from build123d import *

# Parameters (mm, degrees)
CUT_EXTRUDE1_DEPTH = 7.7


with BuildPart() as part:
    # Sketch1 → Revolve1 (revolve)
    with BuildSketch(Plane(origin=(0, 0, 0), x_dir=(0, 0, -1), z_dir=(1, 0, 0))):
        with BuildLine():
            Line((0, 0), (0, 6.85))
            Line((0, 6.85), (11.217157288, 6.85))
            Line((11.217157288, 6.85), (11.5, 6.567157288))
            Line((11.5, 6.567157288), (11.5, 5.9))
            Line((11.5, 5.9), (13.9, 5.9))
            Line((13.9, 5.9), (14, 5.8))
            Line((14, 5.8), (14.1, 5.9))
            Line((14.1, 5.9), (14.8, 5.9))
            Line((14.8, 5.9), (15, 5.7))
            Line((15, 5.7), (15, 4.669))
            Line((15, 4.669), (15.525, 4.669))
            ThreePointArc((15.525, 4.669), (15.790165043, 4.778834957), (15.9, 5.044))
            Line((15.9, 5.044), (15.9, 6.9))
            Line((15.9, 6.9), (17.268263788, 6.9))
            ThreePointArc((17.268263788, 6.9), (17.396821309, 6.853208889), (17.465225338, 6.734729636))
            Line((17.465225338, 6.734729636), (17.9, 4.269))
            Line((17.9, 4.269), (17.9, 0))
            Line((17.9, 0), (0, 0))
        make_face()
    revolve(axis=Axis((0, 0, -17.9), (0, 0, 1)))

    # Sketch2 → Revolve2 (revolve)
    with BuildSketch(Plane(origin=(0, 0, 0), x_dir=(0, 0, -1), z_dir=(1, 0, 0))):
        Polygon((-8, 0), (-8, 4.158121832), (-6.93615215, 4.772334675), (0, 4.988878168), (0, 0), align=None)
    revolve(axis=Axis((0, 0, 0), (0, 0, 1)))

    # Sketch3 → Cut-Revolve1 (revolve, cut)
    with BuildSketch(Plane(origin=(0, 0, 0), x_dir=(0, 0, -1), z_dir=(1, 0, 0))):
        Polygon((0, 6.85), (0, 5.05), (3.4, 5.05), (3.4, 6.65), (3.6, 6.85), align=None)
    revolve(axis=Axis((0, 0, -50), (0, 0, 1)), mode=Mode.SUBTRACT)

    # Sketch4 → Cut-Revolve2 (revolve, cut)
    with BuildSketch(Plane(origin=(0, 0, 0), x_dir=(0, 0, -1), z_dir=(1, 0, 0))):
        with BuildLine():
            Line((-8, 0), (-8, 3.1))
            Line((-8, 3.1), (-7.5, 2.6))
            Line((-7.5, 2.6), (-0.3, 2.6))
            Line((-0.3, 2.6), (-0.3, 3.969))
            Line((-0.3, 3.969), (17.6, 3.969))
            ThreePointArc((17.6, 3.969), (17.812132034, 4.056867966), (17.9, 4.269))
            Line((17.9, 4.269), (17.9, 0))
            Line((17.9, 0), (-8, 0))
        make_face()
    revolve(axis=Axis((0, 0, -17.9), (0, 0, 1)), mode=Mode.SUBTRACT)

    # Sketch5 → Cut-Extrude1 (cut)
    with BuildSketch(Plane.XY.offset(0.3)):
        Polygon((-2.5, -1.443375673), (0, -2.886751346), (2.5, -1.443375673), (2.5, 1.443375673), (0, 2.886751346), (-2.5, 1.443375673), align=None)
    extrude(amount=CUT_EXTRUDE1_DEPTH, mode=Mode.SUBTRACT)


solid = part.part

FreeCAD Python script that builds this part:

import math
import FreeCAD as App
import Part
import Sketcher
from FreeCAD import Vector
Q = App.Units.Quantity


def add_polygon(sketch, points):
    """Adds a closed chain of lines whose ends are joined by coincident constraints."""
    first, n = sketch.GeometryCount, len(points)
    for a, b in zip(points, points[1:] + points[:1]):
        sketch.addGeometry(Part.LineSegment(App.Vector(*a, 0), App.Vector(*b, 0)), False)
    for i in range(n):
        sketch.addConstraint(Sketcher.Constraint("Coincident", first + i, 2, first + (i + 1) % n, 1))

doc = App.newDocument("Part")
body = doc.addObject("PartDesign::Body", "Body")

sketch1 = doc.addObject("Sketcher::SketchObject", "Sketch")
body.addObject(sketch1)
sketch1.AttachmentSupport = (doc.YZ_Plane, [""])
sketch1.MapMode = "FlatFace"
sketch1.addGeometry(Part.LineSegment(Vector(6.85, 0, 0), Vector(0, 0, 0)), False)
sketch1.addGeometry(Part.LineSegment(Vector(0, 0, 0), Vector(0, -17.9, 0)), False)
sketch1.addGeometry(Part.LineSegment(Vector(0, -17.9, 0), Vector(4.27, -17.9, 0)), False)
sketch1.addGeometry(Part.LineSegment(Vector(4.27, -17.9, 0), Vector(6.73, -17.47, 0)), False)
sketch1.addGeometry(Part.ArcOfCircle(Part.Circle(Vector(6.7, -17.27, 0), Vector(0, 0, 1), 0.2), math.radians(-80), math.radians(0)), False)
sketch1.addGeometry(Part.LineSegment(Vector(6.9, -17.27, 0), Vector(6.9, -15.9, 0)), False)
sketch1.addGeometry(Part.LineSegment(Vector(6.9, -15.9, 0), Vector(5.04, -15.9, 0)), False)
sketch1.addGeometry(Part.ArcOfCircle(Part.Circle(Vector(5.04, -15.53, 0), Vector(0, 0, 1), 0.38), math.radians(180), math.radians(270)), False)
sketch1.addGeometry(Part.LineSegment(Vector(4.67, -15.53, 0), Vector(4.67, -15, 0)), False)
sketch1.addGeometry(Part.LineSegment(Vector(4.67, -15, 0), Vector(5.7, -15, 0)), False)
sketch1.addGeometry(Part.LineSegment(Vector(5.7, -15, 0), Vector(5.9, -14.8, 0)), False)
sketch1.addGeometry(Part.LineSegment(Vector(5.9, -14.8, 0), Vector(5.9, -14.1, 0)), False)
sketch1.addGeometry(Part.LineSegment(Vector(5.9, -14.1, 0), Vector(5.8, -14, 0)), False)
sketch1.addGeometry(Part.LineSegment(Vector(5.8, -14, 0), Vector(5.9, -13.9, 0)), False)
sketch1.addGeometry(Part.LineSegment(Vector(5.9, -13.9, 0), Vector(5.9, -11.5, 0)), False)
sketch1.addGeometry(Part.LineSegment(Vector(5.9, -11.5, 0), Vector(6.57, -11.5, 0)), False)
sketch1.addGeometry(Part.LineSegment(Vector(6.57, -11.5, 0), Vector(6.85, -11.22, 0)), False)
sketch1.addGeometry(Part.LineSegment(Vector(6.85, -11.22, 0), Vector(6.85, 0, 0)), False)
sketch1.addConstraint(Sketcher.Constraint("Coincident", 0, 2, 1, 1))
sketch1.addConstraint(Sketcher.Constraint("Coincident", 1, 2, 2, 1))
sketch1.addConstraint(Sketcher.Constraint("Coincident", 2, 2, 3, 1))
sketch1.addConstraint(Sketcher.Constraint("Tangent", 3, 2, 4, 1))
sketch1.addConstraint(Sketcher.Constraint("Tangent", 4, 2, 5, 1))
sketch1.addConstraint(Sketcher.Constraint("Coincident", 5, 2, 6, 1))
sketch1.addConstraint(Sketcher.Constraint("Tangent", 6, 2, 7, 2))
sketch1.addConstraint(Sketcher.Constraint("Tangent", 7, 1, 8, 1))
sketch1.addConstraint(Sketcher.Constraint("Coincident", 8, 2, 9, 1))
sketch1.addConstraint(Sketcher.Constraint("Coincident", 9, 2, 10, 1))
sketch1.addConstraint(Sketcher.Constraint("Coincident", 10, 2, 11, 1))
sketch1.addConstraint(Sketcher.Constraint("Coincident", 11, 2, 12, 1))
sketch1.addConstraint(Sketcher.Constraint("Coincident", 12, 2, 13, 1))
sketch1.addConstraint(Sketcher.Constraint("Coincident", 13, 2, 14, 1))
sketch1.addConstraint(Sketcher.Constraint("Coincident", 14, 2, 15, 1))
sketch1.addConstraint(Sketcher.Constraint("Coincident", 15, 2, 16, 1))
sketch1.addConstraint(Sketcher.Constraint("Coincident", 16, 2, 17, 1))
sketch1.addConstraint(Sketcher.Constraint("Coincident", 17, 2, 0, 1))
sketch1.addConstraint(Sketcher.Constraint("Horizontal", 0))
sketch1.addConstraint(Sketcher.Constraint("Vertical", 1))
sketch1.addConstraint(Sketcher.Constraint("Horizontal", 2))
sketch1.addConstraint(Sketcher.Constraint("Vertical", 5))
sketch1.addConstraint(Sketcher.Constraint("Horizontal", 6))
sketch1.addConstraint(Sketcher.Constraint("Vertical", 8))
sketch1.addConstraint(Sketcher.Constraint("Horizontal", 9))
sketch1.addConstraint(Sketcher.Constraint("Vertical", 11))
sketch1.addConstraint(Sketcher.Constraint("Vertical", 14))
sketch1.addConstraint(Sketcher.Constraint("Horizontal", 15))
sketch1.addConstraint(Sketcher.Constraint("Vertical", 17))
sketch1.addConstraint(Sketcher.Constraint("Coincident", 0, 2, -1, 1))
sketch1.addConstraint(Sketcher.Constraint("Perpendicular", 10, 12))
sketch1.addConstraint(Sketcher.Constraint("Perpendicular", 12, 13))
sketch1.addConstraint(Sketcher.Constraint("Parallel", 13, 16))
sketch1.addConstraint(Sketcher.Constraint("Vertical", 11, 2, 13, 2))
sketch1.addConstraint(Sketcher.Constraint("Equal", 12, 13))
sketch1.addConstraint(Sketcher.Constraint("Radius", 4, 0.2))
sketch1.addConstraint(Sketcher.Constraint("Angle", 3, Q("10 deg")))
sketch1.addConstraint(Sketcher.Constraint("DistanceY", 1, 2, 1, 1, 17.9))
sketch1.addConstraint(Sketcher.Constraint("DistanceY", 11, 1, 11, 2, 0.7))
sketch1.addConstraint(Sketcher.Constraint("DistanceY", 14, 1, 14, 2, 2.4))
sketch1.addConstraint(Sketcher.Constraint("DistanceY", 8, 2, -1, 1, 15.0))
sketch1.addConstraint(Sketcher.Constraint("DistanceY", 12, 2, -1, 1, 14.0))
sketch1.addConstraint(Sketcher.Constraint("Radius", 7, 0.375))
sketch1.addConstraint(Sketcher.Constraint("DistanceY", 2, 2, 5, 2, 2.0))
sketch1.addConstraint(Sketcher.Constraint("Distance", 16, 0.4))
sketch1.addConstraint(Sketcher.Constraint("DistanceX", 0, 2, 0, 1, 6.85))
sketch1.addConstraint(Sketcher.Constraint("DistanceX", -1, 1, 4, 3, 6.7))
sketch1.addConstraint(Sketcher.Constraint("DistanceX", -1, 1, 9, 2, 5.7))
sketch1.addConstraint(Sketcher.Constraint("DistanceX", -1, 1, 10, 2, 5.9))
sketch1.addConstraint(Sketcher.Constraint("DistanceX", 2, 2, 7, 1, 0.4))
sketch1.addConstraint(Sketcher.Constraint("DistanceX", 2, 1, 2, 2, 4.269))
revolution = doc.addObject("PartDesign::Revolution", "Revolution")
body.addObject(revolution)
revolution.Profile = sketch1
revolution.ReferenceAxis = (sketch1, ["V_Axis"])
revolution.Angle = 360

sketch2 = doc.addObject("Sketcher::SketchObject", "Sketch001")
body.addObject(sketch2)
sketch2.AttachmentSupport = (doc.YZ_Plane, [""])
sketch2.MapMode = "FlatFace"
add_polygon(sketch2, [(4.2, 8), (0, 8), (0, 0), (5, 0), (4.8, 6.9)])
sketch2.addConstraint(Sketcher.Constraint("Horizontal", 0))
sketch2.addConstraint(Sketcher.Constraint("Vertical", 1))
sketch2.addConstraint(Sketcher.Constraint("Horizontal", 2))
sketch2.addConstraint(Sketcher.Constraint("Coincident", 1, 2, -1, 1))
sketch2.addConstraint(Sketcher.Constraint("DistanceY", 1, 2, 1, 1, 8.0))
sketch2.addConstraint(Sketcher.Constraint("Angle", 4, Q("120 deg")))
sketch2.addConstraint(Sketcher.Constraint("DistanceX", 0, 2, 0, 1, 4.158122))
sketch2.addConstraint(Sketcher.Constraint("DistanceX", 2, 1, 2, 2, 4.988878))
sketch2.addConstraint(Sketcher.Constraint("Distance", 3, 6.939532))
revolution2 = doc.addObject("PartDesign::Revolution", "Revolution001")
body.addObject(revolution2)
revolution2.Profile = sketch2
revolution2.ReferenceAxis = (sketch2, ["V_Axis"])
revolution2.Angle = 360

sketch3 = doc.addObject("Sketcher::SketchObject", "Sketch002")
body.addObject(sketch3)
sketch3.AttachmentSupport = (doc.YZ_Plane, [""])
sketch3.MapMode = "FlatFace"
add_polygon(sketch3, [(6.85, 0), (5.05, 0), (5.05, -3.4), (6.65, -3.4), (6.85, -3.6)])
sketch3.addConstraint(Sketcher.Constraint("Horizontal", 0))
sketch3.addConstraint(Sketcher.Constraint("Vertical", 1))
sketch3.addConstraint(Sketcher.Constraint("Horizontal", 2))
sketch3.addConstraint(Sketcher.Constraint("Vertical", 4))
sketch3.addConstraint(Sketcher.Constraint("PointOnObject", 0, 2, -1))
sketch3.addConstraint(Sketcher.Constraint("Angle", 3, Q("-45 deg")))
sketch3.addConstraint(Sketcher.Constraint("DistanceX", 0, 2, 0, 1, 1.8))
sketch3.addConstraint(Sketcher.Constraint("DistanceX", 2, 1, 2, 2, 1.6))
sketch3.addConstraint(Sketcher.Constraint("DistanceY", 1, 2, 1, 1, 3.4))
sketch3.addConstraint(Sketcher.Constraint("DistanceX", -1, 1, 0, 2, 5.05))
groove = doc.addObject("PartDesign::Groove", "Groove")
body.addObject(groove)
groove.Profile = sketch3
groove.ReferenceAxis = (sketch3, ["V_Axis"])
groove.Angle = 360

sketch4 = doc.addObject("Sketcher::SketchObject", "Sketch003")
body.addObject(sketch4)
sketch4.AttachmentSupport = (doc.YZ_Plane, [""])
sketch4.MapMode = "FlatFace"
sketch4.addGeometry(Part.LineSegment(Vector(3.1, 8, 0), Vector(0, 8, 0)), False)
sketch4.addGeometry(Part.LineSegment(Vector(0, 8, 0), Vector(0, -17.9, 0)), False)
sketch4.addGeometry(Part.LineSegment(Vector(0, -17.9, 0), Vector(4.27, -17.9, 0)), False)
sketch4.addGeometry(Part.ArcOfCircle(Part.Circle(Vector(4.27, -17.6, 0), Vector(0, 0, 1), 0.3), math.radians(-180), math.radians(-90)), False)
sketch4.addGeometry(Part.LineSegment(Vector(3.97, -17.6, 0), Vector(3.97, 0.3, 0)), False)
sketch4.addGeometry(Part.LineSegment(Vector(3.97, 0.3, 0), Vector(2.6, 0.3, 0)), False)
sketch4.addGeometry(Part.LineSegment(Vector(2.6, 0.3, 0), Vector(2.6, 7.5, 0)), False)
sketch4.addGeometry(Part.LineSegment(Vector(2.6, 7.5, 0), Vector(3.1, 8, 0)), False)
sketch4.addConstraint(Sketcher.Constraint("Coincident", 0, 2, 1, 1))
sketch4.addConstraint(Sketcher.Constraint("Coincident", 1, 2, 2, 1))
sketch4.addConstraint(Sketcher.Constraint("Tangent", 2, 2, 3, 2))
sketch4.addConstraint(Sketcher.Constraint("Tangent", 3, 1, 4, 1))
sketch4.addConstraint(Sketcher.Constraint("Coincident", 4, 2, 5, 1))
sketch4.addConstraint(Sketcher.Constraint("Coincident", 5, 2, 6, 1))
sketch4.addConstraint(Sketcher.Constraint("Coincident", 6, 2, 7, 1))
sketch4.addConstraint(Sketcher.Constraint("Coincident", 7, 2, 0, 1))
sketch4.addConstraint(Sketcher.Constraint("Horizontal", 0))
sketch4.addConstraint(Sketcher.Constraint("Vertical", 1))
sketch4.addConstraint(Sketcher.Constraint("Horizontal", 2))
sketch4.addConstraint(Sketcher.Constraint("Vertical", 4))
sketch4.addConstraint(Sketcher.Constraint("Horizontal", 5))
sketch4.addConstraint(Sketcher.Constraint("Vertical", 6))
sketch4.addConstraint(Sketcher.Constraint("PointOnObject", 0, 2, -2))
sketch4.addConstraint(Sketcher.Constraint("Radius", 3, 0.3))
sketch4.addConstraint(Sketcher.Constraint("Angle", 7, Q("45 deg")))
sketch4.addConstraint(Sketcher.Constraint("DistanceX", 0, 2, 0, 1, 3.1))
sketch4.addConstraint(Sketcher.Constraint("DistanceY", 1, 2, 1, 1, 25.9))
sketch4.addConstraint(Sketcher.Constraint("DistanceY", 4, 1, 4, 2, 17.9))
sketch4.addConstraint(Sketcher.Constraint("DistanceY", 6, 1, 6, 2, 7.2))
sketch4.addConstraint(Sketcher.Constraint("DistanceY", -1, 1, 0, 2, 8.0))
sketch4.addConstraint(Sketcher.Constraint("DistanceX", 2, 1, 2, 2, 4.269))
groove2 = doc.addObject("PartDesign::Groove", "Groove001")
body.addObject(groove2)
groove2.Profile = sketch4
groove2.ReferenceAxis = (sketch4, ["V_Axis"])
groove2.Angle = 360

sketch5 = doc.addObject("Sketcher::SketchObject", "Sketch004")
body.addObject(sketch5)
sketch5.AttachmentSupport = (doc.XY_Plane, [""])
sketch5.MapMode = "FlatFace"
sketch5.AttachmentOffset = App.Placement(Vector(0, 0, 0.3), App.Rotation())
add_polygon(sketch5, [(-2.5, -1.4), (0, -2.9), (2.5, -1.4), (2.5, 1.4), (0, 2.9), (-2.5, 1.4)])
sketch5.addConstraint(Sketcher.Constraint("Vertical", 2))
sketch5.addConstraint(Sketcher.Constraint("Vertical", 5))
sketch5.addConstraint(Sketcher.Constraint("Symmetric", 0, 2, 3, 2, -1, 1))
sketch5.addConstraint(Sketcher.Constraint("Symmetric", 1, 2, 4, 2, -1, 1))
sketch5.addConstraint(Sketcher.Constraint("PointOnObject", 0, 2, -2))
sketch5.addConstraint(Sketcher.Constraint("Parallel", 0, 3))
sketch5.addConstraint(Sketcher.Constraint("Horizontal", 2, 2, 4, 2))
sketch5.addConstraint(Sketcher.Constraint("Angle", 0, Q("-30 deg")))
sketch5.addConstraint(Sketcher.Constraint("DistanceX", 4, 2, 2, 2, 5.0))
sketch5.addConstraint(Sketcher.Constraint("DistanceY", 2, 1, 2, 2, 2.886751))
pocket1 = doc.addObject("PartDesign::Pocket", "Pocket")
body.addObject(pocket1)
pocket1.Profile = sketch5
pocket1.Length = 7.7
pocket1.Reversed = True

doc.recompute()
